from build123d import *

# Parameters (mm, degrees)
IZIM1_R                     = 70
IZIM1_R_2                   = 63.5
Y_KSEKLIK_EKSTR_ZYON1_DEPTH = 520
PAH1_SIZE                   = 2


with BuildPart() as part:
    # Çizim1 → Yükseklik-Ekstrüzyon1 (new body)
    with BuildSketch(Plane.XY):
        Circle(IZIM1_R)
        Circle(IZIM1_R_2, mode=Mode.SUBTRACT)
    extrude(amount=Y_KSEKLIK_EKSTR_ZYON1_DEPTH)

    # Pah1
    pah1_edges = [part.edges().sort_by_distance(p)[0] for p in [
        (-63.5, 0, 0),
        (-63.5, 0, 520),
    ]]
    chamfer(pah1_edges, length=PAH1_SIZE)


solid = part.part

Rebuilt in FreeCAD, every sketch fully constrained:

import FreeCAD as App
import Part
import Sketcher
Q = App.Units.Quantity


def edges_at(feature, points):
    """Names of the edges that pass closest to the given points."""
    edges = feature.Shape.Edges
    near = lambda p: min(range(len(edges)), key=lambda i: edges[i].distToShape(Part.Vertex(*p))[0])
    return sorted({f"Edge{near(p) + 1}" for p in points})

doc = App.newDocument("Part")
body = doc.addObject("PartDesign::Body", "Body")

# Sketch on XY plane
sketch1 = doc.addObject("Sketcher::SketchObject", "Sketch")
body.addObject(sketch1)
sketch1.AttachmentSupport = (doc.XY_Plane, [""])
sketch1.MapMode = "FlatFace"
sketch1.addGeometry([
    Part.Circle(App.Vector(0, 0, 0), App.Vector(0, 0, 1), 70),
    Part.Circle(App.Vector(0, 0, 0), App.Vector(0, 0, 1), 64),
], False)
sketch1.addConstraint([
    Sketcher.Constraint("Coincident", 0, 3, -1, 1),
    Sketcher.Constraint("Coincident", 1, 3, -1, 1),
    Sketcher.Constraint("Diameter", 0, Q("140 mm")),
    Sketcher.Constraint("Diameter", 1, Q("127 mm")),
])
pad1 = doc.addObject("PartDesign::Pad", "Pad")
body.addObject(pad1)
pad1.Profile = sketch1
pad1.Length = 520
doc.recompute()

chamfer = doc.addObject("PartDesign::Chamfer", "Chamfer")
body.addObject(chamfer)
chamfer.Base = (pad1, edges_at(pad1, [(-63.5, 0, 0), (-63.5, 0, 520)]))
chamfer.Size = 2

doc.recompute()
